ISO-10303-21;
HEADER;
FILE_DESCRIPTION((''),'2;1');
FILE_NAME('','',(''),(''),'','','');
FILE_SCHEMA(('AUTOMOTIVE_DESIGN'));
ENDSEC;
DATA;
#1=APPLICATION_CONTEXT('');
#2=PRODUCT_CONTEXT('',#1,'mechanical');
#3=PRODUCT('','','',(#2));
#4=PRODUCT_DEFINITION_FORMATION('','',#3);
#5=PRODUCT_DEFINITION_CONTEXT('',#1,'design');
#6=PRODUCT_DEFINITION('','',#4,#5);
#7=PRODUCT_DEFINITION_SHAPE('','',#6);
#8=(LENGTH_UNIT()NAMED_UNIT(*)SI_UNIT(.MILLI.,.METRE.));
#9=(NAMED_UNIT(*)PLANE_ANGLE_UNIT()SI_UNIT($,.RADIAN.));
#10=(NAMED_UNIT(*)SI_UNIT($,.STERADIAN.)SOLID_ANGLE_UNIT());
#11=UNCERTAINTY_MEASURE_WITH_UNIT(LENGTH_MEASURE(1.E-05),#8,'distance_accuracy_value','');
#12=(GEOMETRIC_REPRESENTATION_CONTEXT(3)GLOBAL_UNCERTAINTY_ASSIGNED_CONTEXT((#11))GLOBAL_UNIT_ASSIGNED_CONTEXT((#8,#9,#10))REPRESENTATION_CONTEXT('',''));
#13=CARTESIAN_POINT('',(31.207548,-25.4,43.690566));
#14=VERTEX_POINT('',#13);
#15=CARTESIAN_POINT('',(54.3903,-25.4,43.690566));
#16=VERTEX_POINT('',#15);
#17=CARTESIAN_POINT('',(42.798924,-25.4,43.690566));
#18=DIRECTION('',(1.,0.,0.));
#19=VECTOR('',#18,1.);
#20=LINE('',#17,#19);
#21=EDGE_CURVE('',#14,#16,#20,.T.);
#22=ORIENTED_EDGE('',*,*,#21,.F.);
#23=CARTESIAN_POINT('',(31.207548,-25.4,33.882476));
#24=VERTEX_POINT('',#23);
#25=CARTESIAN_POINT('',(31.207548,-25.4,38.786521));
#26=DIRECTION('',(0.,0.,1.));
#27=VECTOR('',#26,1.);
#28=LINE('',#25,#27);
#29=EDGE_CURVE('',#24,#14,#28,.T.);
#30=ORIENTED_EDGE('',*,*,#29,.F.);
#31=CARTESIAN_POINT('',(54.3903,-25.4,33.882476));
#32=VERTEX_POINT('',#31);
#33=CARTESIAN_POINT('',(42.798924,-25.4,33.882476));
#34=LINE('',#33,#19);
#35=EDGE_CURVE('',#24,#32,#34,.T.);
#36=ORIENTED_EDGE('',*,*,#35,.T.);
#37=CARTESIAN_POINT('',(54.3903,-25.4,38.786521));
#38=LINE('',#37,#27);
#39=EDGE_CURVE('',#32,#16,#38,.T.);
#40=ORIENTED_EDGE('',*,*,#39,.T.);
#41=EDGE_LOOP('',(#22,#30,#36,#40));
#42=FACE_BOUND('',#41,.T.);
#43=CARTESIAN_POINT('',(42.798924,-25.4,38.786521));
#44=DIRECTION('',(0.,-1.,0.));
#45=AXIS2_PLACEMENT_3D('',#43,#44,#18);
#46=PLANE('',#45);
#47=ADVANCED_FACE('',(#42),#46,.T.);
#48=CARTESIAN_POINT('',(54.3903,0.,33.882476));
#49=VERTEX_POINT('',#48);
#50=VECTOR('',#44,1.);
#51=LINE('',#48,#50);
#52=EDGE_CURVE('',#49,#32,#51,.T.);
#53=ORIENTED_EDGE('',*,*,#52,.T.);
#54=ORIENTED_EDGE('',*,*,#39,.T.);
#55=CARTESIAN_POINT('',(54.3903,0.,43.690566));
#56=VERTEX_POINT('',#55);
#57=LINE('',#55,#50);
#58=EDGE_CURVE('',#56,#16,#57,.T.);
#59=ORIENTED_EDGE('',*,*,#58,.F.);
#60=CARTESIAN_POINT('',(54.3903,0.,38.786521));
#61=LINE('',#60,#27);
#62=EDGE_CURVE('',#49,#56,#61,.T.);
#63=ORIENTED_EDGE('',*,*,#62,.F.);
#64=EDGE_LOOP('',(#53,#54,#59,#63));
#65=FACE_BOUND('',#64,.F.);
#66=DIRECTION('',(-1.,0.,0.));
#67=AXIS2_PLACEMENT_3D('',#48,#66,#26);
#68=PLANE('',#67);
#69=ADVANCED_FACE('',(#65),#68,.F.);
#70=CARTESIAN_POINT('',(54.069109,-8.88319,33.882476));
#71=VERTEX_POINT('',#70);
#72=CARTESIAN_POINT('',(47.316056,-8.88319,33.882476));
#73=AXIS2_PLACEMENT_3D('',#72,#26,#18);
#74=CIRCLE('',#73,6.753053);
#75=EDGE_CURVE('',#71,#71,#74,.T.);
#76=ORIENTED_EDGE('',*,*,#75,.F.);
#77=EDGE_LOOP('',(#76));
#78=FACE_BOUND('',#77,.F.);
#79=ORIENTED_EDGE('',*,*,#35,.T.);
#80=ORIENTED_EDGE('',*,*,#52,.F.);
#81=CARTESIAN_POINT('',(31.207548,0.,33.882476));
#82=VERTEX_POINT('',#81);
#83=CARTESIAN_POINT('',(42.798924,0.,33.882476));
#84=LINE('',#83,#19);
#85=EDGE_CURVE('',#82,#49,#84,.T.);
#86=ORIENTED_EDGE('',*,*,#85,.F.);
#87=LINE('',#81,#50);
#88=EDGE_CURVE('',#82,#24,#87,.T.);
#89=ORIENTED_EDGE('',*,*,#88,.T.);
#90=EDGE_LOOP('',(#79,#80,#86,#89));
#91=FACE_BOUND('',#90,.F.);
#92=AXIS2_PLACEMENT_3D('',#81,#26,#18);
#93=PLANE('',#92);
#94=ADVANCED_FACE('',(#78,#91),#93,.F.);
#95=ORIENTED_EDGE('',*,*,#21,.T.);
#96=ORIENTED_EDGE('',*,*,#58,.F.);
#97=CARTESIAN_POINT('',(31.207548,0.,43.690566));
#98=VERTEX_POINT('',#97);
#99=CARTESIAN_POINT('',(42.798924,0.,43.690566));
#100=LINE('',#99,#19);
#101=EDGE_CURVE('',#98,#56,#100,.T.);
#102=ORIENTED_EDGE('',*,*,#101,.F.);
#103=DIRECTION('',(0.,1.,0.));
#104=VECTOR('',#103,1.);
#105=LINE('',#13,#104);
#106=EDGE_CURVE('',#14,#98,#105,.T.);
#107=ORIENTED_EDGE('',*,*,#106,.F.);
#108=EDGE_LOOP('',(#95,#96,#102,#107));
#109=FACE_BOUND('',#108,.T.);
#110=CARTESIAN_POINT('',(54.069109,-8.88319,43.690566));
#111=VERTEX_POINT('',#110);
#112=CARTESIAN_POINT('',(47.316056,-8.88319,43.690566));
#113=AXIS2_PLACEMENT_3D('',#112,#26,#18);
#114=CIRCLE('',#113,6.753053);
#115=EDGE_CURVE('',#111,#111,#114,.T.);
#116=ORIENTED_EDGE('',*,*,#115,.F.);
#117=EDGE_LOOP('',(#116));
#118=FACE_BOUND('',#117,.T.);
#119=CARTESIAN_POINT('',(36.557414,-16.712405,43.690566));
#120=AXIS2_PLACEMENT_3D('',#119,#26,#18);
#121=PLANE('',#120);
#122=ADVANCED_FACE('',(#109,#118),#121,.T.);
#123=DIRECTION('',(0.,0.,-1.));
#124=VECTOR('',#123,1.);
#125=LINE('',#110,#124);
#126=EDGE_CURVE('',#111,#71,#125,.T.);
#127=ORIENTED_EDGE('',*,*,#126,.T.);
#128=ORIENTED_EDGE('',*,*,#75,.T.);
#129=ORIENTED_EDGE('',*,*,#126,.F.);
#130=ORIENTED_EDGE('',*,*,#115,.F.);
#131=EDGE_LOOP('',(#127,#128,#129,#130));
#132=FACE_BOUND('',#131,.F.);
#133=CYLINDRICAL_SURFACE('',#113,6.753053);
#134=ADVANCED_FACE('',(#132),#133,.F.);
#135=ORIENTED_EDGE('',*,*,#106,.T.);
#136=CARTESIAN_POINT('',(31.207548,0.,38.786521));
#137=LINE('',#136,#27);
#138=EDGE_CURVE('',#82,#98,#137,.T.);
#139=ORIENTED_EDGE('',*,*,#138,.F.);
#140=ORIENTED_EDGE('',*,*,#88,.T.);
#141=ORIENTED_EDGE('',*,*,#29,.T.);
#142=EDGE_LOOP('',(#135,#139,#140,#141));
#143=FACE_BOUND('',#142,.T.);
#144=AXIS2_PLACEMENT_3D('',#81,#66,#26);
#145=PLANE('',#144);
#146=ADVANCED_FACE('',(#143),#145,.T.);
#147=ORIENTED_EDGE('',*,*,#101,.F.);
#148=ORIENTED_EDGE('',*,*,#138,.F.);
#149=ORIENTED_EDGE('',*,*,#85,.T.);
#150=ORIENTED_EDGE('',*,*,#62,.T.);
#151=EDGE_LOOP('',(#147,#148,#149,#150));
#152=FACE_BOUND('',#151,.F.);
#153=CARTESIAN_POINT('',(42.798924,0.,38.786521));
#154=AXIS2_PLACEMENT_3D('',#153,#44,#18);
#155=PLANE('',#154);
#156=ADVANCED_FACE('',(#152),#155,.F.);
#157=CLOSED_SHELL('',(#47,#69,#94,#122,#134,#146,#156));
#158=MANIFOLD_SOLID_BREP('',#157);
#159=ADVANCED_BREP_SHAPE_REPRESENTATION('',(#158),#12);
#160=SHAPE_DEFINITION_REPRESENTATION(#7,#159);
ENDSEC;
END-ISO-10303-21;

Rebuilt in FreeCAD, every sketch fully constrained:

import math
import FreeCAD as App
import Part
import Sketcher
Q = App.Units.Quantity

doc = App.newDocument("Part")
params = doc.addObject("Spreadsheet::Sheet", "Params")
for row, (alias, value) in enumerate([
    ("pad1_length", "1 in"),
    ("pocket1_length", "1 in"),
    ("pocket2_length", "1 in"),
], start=1):
    params.set(f"A{row}", alias)
    params.set(f"B{row}", "=" + value)
    params.setAlias(f"B{row}", alias)

body = doc.addObject("PartDesign::Body", "Body")

# Sketch on XZ plane
sketch1 = doc.addObject("Sketcher::SketchObject", "Sketch")
body.addObject(sketch1)
sketch1.AttachmentSupport = (doc.XZ_Plane, [""])
sketch1.MapMode = "FlatFace"
sketch1.addGeometry(Part.LineSegment(App.Vector(31, 44, 0), App.Vector(31, 34, 0)), False)
sketch1.addGeometry(Part.LineSegment(App.Vector(31, 34, 0), App.Vector(54, 34, 0)), False)
sketch1.addGeometry(Part.LineSegment(App.Vector(54, 34, 0), App.Vector(54, 44, 0)), False)
sketch1.addGeometry(Part.LineSegment(App.Vector(54, 44, 0), App.Vector(31, 44, 0)), False)
sketch1.addConstraint(Sketcher.Constraint("Coincident", 0, 2, 1, 1))
sketch1.addConstraint(Sketcher.Constraint("Coincident", 1, 2, 2, 1))
sketch1.addConstraint(Sketcher.Constraint("Coincident", 2, 2, 3, 1))
sketch1.addConstraint(Sketcher.Constraint("Coincident", 3, 2, 0, 1))
sketch1.addConstraint(Sketcher.Constraint("Vertical", 0))
sketch1.addConstraint(Sketcher.Constraint("Horizontal", 1))
sketch1.addConstraint(Sketcher.Constraint("Vertical", 2))
sketch1.addConstraint(Sketcher.Constraint("Horizontal", 3))
sketch1.addConstraint(Sketcher.Constraint("DistanceY", 0, 2, 0, 1, Q("9.80809 mm")))
sketch1.addConstraint(Sketcher.Constraint("DistanceX", -1, 1, 1, 2, Q("54.3903 mm")))
sketch1.addConstraint(Sketcher.Constraint("DistanceX", 1, 1, 1, 2, Q("23.182752 mm")))
sketch1.addConstraint(Sketcher.Constraint("DistanceY", -1, 1, 0, 2, Q("33.882476 mm")))
pad1 = doc.addObject("PartDesign::Pad", "Pad")
body.addObject(pad1)
pad1.Profile = sketch1
pad1.setExpression("Length", "Params.pad1_length")

# Sketch on XY plane
sketch2 = doc.addObject("Sketcher::SketchObject", "Sketch001")
body.addObject(sketch2)
sketch2.AttachmentSupport = (doc.XY_Plane, [""])
sketch2.MapMode = "FlatFace"
sketch2.AttachmentOffset = App.Placement(App.Vector(0, 0, 43.690566), App.Rotation())
sketch2.addGeometry(Part.ArcOfCircle(Part.Circle(App.Vector(37, -17, 0), App.Vector(0, 0, 1), 5), math.radians(-180), math.radians(0)), False)
sketch2.addGeometry(Part.ArcOfCircle(Part.Circle(App.Vector(37, -17, 0), App.Vector(0, 0, 1), 5), math.radians(0), math.radians(180)), False)
sketch2.addConstraint(Sketcher.Constraint("Tangent", 0, 1, 1, 2))
sketch2.addConstraint(Sketcher.Constraint("Coincident", 1, 1, 0, 2))
sketch2.addConstraint(Sketcher.Constraint("Horizontal", 1, 3, 0, 1))
sketch2.addConstraint(Sketcher.Constraint("Horizontal", 0, 1, 1, 1))
sketch2.addConstraint(Sketcher.Constraint("Radius", 0, Q("5.349865 mm")))
sketch2.addConstraint(Sketcher.Constraint("DistanceX", -1, 1, 0, 1, Q("31.207548 mm")))
sketch2.addConstraint(Sketcher.Constraint("DistanceY", 0, 3, -1, 1, Q("16.712405 mm")))
pocket1 = doc.addObject("PartDesign::Pocket", "Pocket")
body.addObject(pocket1)
pocket1.Profile = sketch2
pocket1.setExpression("Length", "Params.pocket1_length")
pocket1.Reversed = True

# Sketch on XY plane
sketch3 = doc.addObject("Sketcher::SketchObject", "Sketch002")
body.addObject(sketch3)
sketch3.AttachmentSupport = (doc.XY_Plane, [""])
sketch3.MapMode = "FlatFace"
sketch3.AttachmentOffset = App.Placement(App.Vector(0, 0, 43.690566), App.Rotation())
sketch3.addGeometry(Part.Circle(App.Vector(47, -9, 0), App.Vector(0, 0, 1), 7), False)
sketch3.addConstraint(Sketcher.Constraint("Diameter", 0, Q("13.506106 mm")))
sketch3.addConstraint(Sketcher.Constraint("DistanceY", 0, 3, -1, 1, Q("8.88319 mm")))
sketch3.addConstraint(Sketcher.Constraint("DistanceX", -1, 1, 0, 3, Q("47.316056 mm")))
pocket2 = doc.addObject("PartDesign::Pocket", "Pocket001")
body.addObject(pocket2)
pocket2.Profile = sketch3
pocket2.setExpression("Length", "Params.pocket2_length")

doc.recompute()
